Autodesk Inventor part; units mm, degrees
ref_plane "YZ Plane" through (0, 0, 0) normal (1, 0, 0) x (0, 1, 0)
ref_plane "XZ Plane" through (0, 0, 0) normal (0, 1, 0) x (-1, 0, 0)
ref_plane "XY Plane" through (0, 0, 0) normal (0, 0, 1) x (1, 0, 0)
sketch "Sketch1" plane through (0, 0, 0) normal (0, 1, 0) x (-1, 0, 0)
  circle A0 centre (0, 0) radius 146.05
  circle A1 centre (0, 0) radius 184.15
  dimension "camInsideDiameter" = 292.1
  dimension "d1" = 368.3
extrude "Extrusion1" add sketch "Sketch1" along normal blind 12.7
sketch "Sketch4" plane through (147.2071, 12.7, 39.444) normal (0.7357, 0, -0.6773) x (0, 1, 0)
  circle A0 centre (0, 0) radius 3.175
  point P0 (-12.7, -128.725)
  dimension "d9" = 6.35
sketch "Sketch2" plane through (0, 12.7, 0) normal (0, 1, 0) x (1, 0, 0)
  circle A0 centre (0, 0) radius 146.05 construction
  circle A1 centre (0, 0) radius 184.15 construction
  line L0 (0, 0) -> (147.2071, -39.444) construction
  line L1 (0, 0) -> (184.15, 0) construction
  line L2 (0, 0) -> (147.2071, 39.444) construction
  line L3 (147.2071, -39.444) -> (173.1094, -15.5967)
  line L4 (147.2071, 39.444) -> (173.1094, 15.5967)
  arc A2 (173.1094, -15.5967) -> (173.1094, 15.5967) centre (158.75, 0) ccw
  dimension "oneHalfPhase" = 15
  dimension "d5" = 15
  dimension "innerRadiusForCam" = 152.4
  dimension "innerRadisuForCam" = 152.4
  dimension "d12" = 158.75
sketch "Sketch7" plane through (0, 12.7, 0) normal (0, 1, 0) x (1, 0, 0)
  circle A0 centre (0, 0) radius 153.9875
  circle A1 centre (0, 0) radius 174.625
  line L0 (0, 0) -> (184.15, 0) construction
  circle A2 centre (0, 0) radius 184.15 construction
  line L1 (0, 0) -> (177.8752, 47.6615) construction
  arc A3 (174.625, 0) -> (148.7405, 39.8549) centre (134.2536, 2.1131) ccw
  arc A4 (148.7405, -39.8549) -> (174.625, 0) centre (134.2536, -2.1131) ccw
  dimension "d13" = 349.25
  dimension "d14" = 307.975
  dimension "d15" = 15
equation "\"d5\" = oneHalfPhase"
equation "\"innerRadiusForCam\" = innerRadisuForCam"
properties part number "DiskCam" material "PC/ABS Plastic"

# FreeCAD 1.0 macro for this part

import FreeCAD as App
import Part
import Sketcher
from FreeCAD import Vector
Q = App.Units.Quantity

doc = App.newDocument("Part")
body = doc.addObject("PartDesign::Body", "Body")

# Sketch on XZ plane
sketch1 = doc.addObject("Sketcher::SketchObject", "Sketch")
body.addObject(sketch1)
sketch1.AttachmentSupport = (doc.XZ_Plane, [""])
sketch1.MapMode = "FlatFace"
sketch1.addGeometry([
    Part.Circle(Vector(0, 0, 0), Vector(0, 0, 1), 184.15),
    Part.Circle(Vector(0, 0, 0), Vector(0, 0, 1), 146.05),
], False)
sketch1.addConstraint([
    Sketcher.Constraint("Coincident", 0, 3, -1, 1),
    Sketcher.Constraint("Coincident", 1, 3, -1, 1),
    Sketcher.Constraint("Diameter", 0, Q("14.5 in")),
    Sketcher.Constraint("Diameter", 1, Q("11.5 in")),
])
pad1 = doc.addObject("PartDesign::Pad", "Pad")
body.addObject(pad1)
pad1.Profile = sketch1
pad1.Length = Q("0.5 in")
pad1.Reversed = True

doc.recompute()
